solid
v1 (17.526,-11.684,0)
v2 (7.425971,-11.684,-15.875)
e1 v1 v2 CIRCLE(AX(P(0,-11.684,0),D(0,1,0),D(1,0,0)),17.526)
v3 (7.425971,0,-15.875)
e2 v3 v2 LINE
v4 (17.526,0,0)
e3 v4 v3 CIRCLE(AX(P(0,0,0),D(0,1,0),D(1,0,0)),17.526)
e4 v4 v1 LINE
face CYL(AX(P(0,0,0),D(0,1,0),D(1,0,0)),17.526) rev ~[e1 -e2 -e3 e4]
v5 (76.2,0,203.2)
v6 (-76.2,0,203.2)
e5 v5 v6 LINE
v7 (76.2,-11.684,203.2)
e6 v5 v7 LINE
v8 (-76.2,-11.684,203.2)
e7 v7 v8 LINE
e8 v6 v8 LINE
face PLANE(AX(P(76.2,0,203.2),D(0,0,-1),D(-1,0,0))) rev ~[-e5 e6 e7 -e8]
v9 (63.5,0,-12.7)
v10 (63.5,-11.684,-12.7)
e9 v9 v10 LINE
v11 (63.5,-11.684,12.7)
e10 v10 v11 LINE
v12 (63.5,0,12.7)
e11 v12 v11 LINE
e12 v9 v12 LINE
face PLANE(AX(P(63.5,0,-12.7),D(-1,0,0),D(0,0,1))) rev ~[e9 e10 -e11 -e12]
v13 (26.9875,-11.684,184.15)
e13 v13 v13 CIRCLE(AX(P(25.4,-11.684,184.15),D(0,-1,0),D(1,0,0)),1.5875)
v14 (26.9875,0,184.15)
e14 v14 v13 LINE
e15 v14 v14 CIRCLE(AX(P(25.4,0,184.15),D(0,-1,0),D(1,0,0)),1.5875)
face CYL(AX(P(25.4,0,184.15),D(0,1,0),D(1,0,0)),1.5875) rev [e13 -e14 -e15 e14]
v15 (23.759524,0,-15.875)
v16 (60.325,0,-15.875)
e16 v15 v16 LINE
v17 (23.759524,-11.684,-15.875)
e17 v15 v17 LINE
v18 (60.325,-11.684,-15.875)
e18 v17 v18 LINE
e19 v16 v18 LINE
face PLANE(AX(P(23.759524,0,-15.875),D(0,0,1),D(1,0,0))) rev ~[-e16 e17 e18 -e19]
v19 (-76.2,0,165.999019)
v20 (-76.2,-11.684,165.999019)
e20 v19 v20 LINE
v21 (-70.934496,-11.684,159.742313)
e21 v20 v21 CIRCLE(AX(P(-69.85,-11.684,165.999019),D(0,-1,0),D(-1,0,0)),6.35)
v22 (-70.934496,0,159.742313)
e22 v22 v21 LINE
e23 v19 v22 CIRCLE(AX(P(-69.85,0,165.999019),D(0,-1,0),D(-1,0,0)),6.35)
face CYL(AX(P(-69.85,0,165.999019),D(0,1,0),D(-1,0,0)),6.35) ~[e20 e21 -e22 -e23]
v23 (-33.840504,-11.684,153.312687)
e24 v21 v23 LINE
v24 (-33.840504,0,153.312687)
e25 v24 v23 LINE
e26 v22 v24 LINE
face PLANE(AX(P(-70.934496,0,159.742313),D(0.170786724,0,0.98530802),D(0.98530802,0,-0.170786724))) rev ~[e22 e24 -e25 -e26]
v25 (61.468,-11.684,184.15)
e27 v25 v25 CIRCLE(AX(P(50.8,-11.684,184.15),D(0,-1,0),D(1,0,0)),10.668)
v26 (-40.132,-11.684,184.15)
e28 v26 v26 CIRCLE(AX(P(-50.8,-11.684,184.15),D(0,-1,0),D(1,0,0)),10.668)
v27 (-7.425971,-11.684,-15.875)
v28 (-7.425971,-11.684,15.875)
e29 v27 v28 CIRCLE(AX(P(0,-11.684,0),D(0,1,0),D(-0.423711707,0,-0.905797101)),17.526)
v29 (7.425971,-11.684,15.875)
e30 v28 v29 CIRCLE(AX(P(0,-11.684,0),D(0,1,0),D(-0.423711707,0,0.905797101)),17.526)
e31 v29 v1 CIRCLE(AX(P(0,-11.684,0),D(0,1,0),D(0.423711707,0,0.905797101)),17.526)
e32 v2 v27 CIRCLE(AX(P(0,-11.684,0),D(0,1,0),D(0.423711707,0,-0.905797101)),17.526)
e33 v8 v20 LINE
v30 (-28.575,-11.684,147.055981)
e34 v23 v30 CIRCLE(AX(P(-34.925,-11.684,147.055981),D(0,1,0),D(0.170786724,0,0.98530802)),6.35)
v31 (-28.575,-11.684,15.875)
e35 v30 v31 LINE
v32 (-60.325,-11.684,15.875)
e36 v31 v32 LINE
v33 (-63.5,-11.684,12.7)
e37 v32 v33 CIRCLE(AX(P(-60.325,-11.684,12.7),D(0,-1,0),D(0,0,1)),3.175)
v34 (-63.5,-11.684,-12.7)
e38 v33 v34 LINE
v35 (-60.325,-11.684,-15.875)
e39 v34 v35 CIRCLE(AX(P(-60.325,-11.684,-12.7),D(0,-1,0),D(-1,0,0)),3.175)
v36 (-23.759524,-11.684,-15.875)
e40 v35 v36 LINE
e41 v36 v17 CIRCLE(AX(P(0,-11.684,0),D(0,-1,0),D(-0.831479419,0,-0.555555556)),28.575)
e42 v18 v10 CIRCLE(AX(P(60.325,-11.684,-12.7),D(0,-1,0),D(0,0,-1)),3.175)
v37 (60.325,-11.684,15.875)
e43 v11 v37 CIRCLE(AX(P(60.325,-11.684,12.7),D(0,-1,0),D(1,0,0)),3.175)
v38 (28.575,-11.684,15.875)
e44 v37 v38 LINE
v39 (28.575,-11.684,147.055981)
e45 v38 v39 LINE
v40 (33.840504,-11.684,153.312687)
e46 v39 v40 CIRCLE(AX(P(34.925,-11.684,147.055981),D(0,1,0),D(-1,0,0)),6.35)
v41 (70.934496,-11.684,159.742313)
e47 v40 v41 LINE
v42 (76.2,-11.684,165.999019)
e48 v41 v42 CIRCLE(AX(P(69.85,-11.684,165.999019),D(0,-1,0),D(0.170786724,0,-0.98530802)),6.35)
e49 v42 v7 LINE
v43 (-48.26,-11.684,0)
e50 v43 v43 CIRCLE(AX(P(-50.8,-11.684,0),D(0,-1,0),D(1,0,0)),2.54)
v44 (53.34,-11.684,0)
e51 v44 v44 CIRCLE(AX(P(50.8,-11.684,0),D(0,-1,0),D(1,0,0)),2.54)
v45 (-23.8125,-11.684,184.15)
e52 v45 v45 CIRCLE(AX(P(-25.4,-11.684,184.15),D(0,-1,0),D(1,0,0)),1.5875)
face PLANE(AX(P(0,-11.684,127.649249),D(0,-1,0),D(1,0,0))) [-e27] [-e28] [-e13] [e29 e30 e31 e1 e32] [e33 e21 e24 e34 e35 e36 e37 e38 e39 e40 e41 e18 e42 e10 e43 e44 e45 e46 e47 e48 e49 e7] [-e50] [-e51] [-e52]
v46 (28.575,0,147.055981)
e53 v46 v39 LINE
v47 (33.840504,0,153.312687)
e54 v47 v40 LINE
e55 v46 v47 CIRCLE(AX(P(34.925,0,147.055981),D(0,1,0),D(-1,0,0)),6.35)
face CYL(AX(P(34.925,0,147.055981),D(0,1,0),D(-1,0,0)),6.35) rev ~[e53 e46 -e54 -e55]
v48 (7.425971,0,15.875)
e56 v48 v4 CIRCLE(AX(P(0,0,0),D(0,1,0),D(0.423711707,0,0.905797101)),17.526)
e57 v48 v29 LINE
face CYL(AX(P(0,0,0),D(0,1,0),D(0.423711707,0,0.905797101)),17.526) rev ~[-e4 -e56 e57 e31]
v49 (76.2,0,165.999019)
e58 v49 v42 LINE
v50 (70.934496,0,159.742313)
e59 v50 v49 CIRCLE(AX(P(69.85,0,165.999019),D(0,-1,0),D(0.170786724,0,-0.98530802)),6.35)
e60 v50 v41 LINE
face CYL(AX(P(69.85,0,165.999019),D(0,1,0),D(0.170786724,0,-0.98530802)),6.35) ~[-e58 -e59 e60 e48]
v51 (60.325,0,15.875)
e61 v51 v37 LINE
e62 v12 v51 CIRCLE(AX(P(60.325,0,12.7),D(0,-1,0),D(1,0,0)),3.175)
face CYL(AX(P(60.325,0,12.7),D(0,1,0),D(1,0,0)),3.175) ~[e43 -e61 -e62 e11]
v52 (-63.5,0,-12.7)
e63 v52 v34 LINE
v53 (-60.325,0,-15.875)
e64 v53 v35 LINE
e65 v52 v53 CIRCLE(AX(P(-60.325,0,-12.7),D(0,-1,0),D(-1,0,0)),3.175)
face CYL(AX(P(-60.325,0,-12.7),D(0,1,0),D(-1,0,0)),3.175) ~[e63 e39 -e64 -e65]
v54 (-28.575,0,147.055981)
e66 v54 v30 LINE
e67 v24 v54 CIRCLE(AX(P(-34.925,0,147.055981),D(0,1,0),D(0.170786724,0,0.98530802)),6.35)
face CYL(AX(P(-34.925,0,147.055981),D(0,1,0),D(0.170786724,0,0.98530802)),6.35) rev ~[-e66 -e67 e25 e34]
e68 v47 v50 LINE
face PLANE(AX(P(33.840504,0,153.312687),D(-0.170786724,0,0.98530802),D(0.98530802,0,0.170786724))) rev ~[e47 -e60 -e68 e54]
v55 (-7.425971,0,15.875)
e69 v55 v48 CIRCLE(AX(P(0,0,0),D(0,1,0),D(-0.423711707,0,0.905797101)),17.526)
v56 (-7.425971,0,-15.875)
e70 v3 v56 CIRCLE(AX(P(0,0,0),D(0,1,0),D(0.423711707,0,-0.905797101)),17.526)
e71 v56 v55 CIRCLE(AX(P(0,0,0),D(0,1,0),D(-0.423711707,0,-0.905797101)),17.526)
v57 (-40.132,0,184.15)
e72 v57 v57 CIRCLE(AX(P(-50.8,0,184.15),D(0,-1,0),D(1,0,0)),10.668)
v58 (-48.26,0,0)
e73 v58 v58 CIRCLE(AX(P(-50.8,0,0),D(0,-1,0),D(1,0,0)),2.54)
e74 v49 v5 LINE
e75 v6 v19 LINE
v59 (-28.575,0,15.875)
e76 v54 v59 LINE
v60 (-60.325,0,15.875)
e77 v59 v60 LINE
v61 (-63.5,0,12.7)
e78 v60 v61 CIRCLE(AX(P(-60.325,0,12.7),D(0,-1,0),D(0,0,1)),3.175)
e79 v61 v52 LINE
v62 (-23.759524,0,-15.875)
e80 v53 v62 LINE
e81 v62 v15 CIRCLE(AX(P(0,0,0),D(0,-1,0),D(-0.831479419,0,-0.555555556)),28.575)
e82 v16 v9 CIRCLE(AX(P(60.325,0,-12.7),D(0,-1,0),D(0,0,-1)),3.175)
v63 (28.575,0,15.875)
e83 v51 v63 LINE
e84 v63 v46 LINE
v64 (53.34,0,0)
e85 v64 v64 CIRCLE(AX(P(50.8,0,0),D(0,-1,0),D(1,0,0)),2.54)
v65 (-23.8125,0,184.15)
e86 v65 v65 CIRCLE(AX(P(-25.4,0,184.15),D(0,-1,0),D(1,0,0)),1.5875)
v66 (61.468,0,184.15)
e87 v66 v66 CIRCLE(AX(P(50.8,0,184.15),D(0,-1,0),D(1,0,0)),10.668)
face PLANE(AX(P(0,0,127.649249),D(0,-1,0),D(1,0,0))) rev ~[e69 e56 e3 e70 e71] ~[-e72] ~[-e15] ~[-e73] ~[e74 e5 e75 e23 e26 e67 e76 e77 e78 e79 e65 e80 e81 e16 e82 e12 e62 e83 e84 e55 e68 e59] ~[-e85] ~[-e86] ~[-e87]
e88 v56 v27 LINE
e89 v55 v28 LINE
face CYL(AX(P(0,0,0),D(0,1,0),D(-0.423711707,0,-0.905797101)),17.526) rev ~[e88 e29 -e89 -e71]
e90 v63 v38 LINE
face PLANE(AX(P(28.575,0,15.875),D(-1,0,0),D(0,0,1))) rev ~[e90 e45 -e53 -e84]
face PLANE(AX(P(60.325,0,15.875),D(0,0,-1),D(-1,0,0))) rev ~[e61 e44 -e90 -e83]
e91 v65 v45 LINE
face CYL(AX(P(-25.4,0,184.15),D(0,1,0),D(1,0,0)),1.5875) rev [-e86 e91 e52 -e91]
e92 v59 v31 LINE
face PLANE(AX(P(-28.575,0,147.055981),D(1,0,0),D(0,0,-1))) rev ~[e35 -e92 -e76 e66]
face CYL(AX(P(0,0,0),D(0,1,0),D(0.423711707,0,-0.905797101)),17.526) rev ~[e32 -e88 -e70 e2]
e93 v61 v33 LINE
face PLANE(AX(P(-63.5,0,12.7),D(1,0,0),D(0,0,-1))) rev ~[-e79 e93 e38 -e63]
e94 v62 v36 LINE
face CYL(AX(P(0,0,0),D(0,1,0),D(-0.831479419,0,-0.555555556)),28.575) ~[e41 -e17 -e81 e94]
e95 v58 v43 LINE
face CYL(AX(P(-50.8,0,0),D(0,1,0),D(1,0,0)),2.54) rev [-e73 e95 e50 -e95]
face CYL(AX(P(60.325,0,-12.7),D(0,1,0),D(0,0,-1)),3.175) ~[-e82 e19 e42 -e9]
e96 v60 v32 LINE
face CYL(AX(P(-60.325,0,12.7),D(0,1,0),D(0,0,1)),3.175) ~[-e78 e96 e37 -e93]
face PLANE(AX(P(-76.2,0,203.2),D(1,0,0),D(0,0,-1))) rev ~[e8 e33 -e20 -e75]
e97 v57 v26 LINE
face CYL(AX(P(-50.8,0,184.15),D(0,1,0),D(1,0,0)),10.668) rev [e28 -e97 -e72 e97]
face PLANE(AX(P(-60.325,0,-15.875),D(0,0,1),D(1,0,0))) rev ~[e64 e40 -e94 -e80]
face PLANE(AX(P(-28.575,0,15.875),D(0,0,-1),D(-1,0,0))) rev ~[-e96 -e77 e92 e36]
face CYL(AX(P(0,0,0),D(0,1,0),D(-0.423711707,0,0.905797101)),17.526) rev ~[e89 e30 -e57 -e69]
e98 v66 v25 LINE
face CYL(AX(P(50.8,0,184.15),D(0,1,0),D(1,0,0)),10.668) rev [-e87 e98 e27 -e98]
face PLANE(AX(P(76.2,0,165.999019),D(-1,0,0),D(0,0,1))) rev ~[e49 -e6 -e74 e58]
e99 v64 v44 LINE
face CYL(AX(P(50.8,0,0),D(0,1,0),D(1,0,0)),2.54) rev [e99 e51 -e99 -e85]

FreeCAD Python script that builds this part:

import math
import FreeCAD as App
import Part
import Sketcher

V = App.Vector
Q = App.Units.Quantity

doc = App.newDocument("Part")
body = doc.addObject("PartDesign::Body", "Body")

# Sketch on XZ plane
sketch1 = body.newObject("Sketcher::SketchObject", "Sketch")
sketch1.AttachmentSupport = (doc.getObject("XZ_Plane"), [""])
sketch1.MapMode = "FlatFace"
sketch1.addGeometry([
    Part.LineSegment(V(60.3, 15.9, 0), V(28.6, 15.9, 0)),  # 0
    Part.LineSegment(V(28.6, 15.9, 0), V(28.6, 147.1, 0)),  # 1
    Part.ArcOfCircle(Part.Circle(V(34.9, 147.1, 0), V(0, 0, 1), 6.3), math.radians(100), math.radians(180)),  # 2
    Part.LineSegment(V(33.8, 153.3, 0), V(70.9, 159.7, 0)),  # 3
    Part.ArcOfCircle(Part.Circle(V(69.8, 166, 0), V(0, 0, 1), 6.3), math.radians(-80), math.radians(0)),  # 4
    Part.LineSegment(V(76.2, 166, 0), V(76.2, 203.2, 0)),  # 5
    Part.LineSegment(V(76.2, 203.2, 0), V(-76.2, 203.2, 0)),  # 6
    Part.LineSegment(V(-76.2, 203.2, 0), V(-76.2, 166, 0)),  # 7
    Part.ArcOfCircle(Part.Circle(V(-69.8, 166, 0), V(0, 0, 1), 6.3), math.radians(180), math.radians(260)),  # 8
    Part.LineSegment(V(-70.9, 159.7, 0), V(-33.8, 153.3, 0)),  # 9
    Part.ArcOfCircle(Part.Circle(V(-34.9, 147.1, 0), V(0, 0, 1), 6.3), math.radians(0), math.radians(80)),  # 10
    Part.LineSegment(V(-28.6, 147.1, 0), V(-28.6, 15.9, 0)),  # 11
    Part.LineSegment(V(-28.6, 15.9, 0), V(-60.3, 15.9, 0)),  # 12
    Part.ArcOfCircle(Part.Circle(V(-60.3, 12.7, 0), V(0, 0, 1), 3.2), math.radians(90), math.radians(180)),  # 13
    Part.LineSegment(V(-63.5, 12.7, 0), V(-63.5, -12.7, 0)),  # 14
    Part.ArcOfCircle(Part.Circle(V(-60.3, -12.7, 0), V(0, 0, 1), 3.2), math.radians(180), math.radians(270)),  # 15
    Part.LineSegment(V(-60.3, -15.9, 0), V(-23.8, -15.9, 0)),  # 16
    Part.ArcOfCircle(Part.Circle(V(0, 0, 0), V(0, 0, 1), 28.6), math.radians(-146), math.radians(-34)),  # 17
    Part.LineSegment(V(23.8, -15.9, 0), V(60.3, -15.9, 0)),  # 18
    Part.ArcOfCircle(Part.Circle(V(60.3, -12.7, 0), V(0, 0, 1), 3.2), math.radians(-90), math.radians(0)),  # 19
    Part.LineSegment(V(63.5, -12.7, 0), V(63.5, 12.7, 0)),  # 20
    Part.ArcOfCircle(Part.Circle(V(60.3, 12.7, 0), V(0, 0, 1), 3.2), math.radians(0), math.radians(90)),  # 21
    Part.Circle(V(-50.8, 0, 0), V(0, 0, 1), 2.5),  # 22
    Part.ArcOfCircle(Part.Circle(V(0, 0, 0), V(0, 0, 1), 17.5), math.radians(65), math.radians(115)),  # 23
    Part.ArcOfCircle(Part.Circle(V(0, 0, 0), V(0, 0, 1), 17.5), math.radians(0), math.radians(65)),  # 24
    Part.ArcOfCircle(Part.Circle(V(0, 0, 0), V(0, 0, 1), 17.5), math.radians(-65), math.radians(0)),  # 25
    Part.ArcOfCircle(Part.Circle(V(0, 0, 0), V(0, 0, 1), 17.5), math.radians(-115), math.radians(-65)),  # 26
    Part.ArcOfCircle(Part.Circle(V(0, 0, 0), V(0, 0, 1), 17.5), math.radians(115), math.radians(245)),  # 27
    Part.Circle(V(50.8, 0, 0), V(0, 0, 1), 2.5),  # 28
    Part.Circle(V(-50.8, 184.2, 0), V(0, 0, 1), 10.7),  # 29
    Part.Circle(V(-25.4, 184.2, 0), V(0, 0, 1), 1.6),  # 30
    Part.Circle(V(25.4, 184.2, 0), V(0, 0, 1), 1.6),  # 31
    Part.Circle(V(50.8, 184.2, 0), V(0, 0, 1), 10.7),  # 32
], False)
sketch1.addConstraint([
    Sketcher.Constraint("Coincident", 0, 2, 1, 1),
    Sketcher.Constraint("Tangent", 1, 2, 2, 2),
    Sketcher.Constraint("Tangent", 2, 1, 3, 1),
    Sketcher.Constraint("Tangent", 3, 2, 4, 1),
    Sketcher.Constraint("Tangent", 4, 2, 5, 1),
    Sketcher.Constraint("Coincident", 5, 2, 6, 1),
    Sketcher.Constraint("Coincident", 6, 2, 7, 1),
    Sketcher.Constraint("Tangent", 7, 2, 8, 1),
    Sketcher.Constraint("Tangent", 8, 2, 9, 1),
    Sketcher.Constraint("Tangent", 9, 2, 10, 2),
    Sketcher.Constraint("Tangent", 10, 1, 11, 1),
    Sketcher.Constraint("Coincident", 11, 2, 12, 1),
    Sketcher.Constraint("Tangent", 12, 2, 13, 1),
    Sketcher.Constraint("Tangent", 13, 2, 14, 1),
    Sketcher.Constraint("Tangent", 14, 2, 15, 1),
    Sketcher.Constraint("Tangent", 15, 2, 16, 1),
    Sketcher.Constraint("Coincident", 16, 2, 17, 1),
    Sketcher.Constraint("Coincident", 17, 2, 18, 1),
    Sketcher.Constraint("Tangent", 18, 2, 19, 1),
    Sketcher.Constraint("Tangent", 19, 2, 20, 1),
    Sketcher.Constraint("Tangent", 20, 2, 21, 1),
    Sketcher.Constraint("Tangent", 21, 2, 0, 1),
    Sketcher.Constraint("Tangent", 23, 1, 24, 2),
    Sketcher.Constraint("Tangent", 24, 1, 25, 2),
    Sketcher.Constraint("Tangent", 25, 1, 26, 2),
    Sketcher.Constraint("Tangent", 26, 1, 27, 2),
    Sketcher.Constraint("Tangent", 27, 1, 23, 2),
    Sketcher.Constraint("Horizontal", 0),
    Sketcher.Constraint("Vertical", 1),
    Sketcher.Constraint("Vertical", 5),
    Sketcher.Constraint("Horizontal", 6),
    Sketcher.Constraint("Vertical", 7),
    Sketcher.Constraint("Vertical", 11),
    Sketcher.Constraint("Horizontal", 12),
    Sketcher.Constraint("Vertical", 14),
    Sketcher.Constraint("Horizontal", 16),
    Sketcher.Constraint("Horizontal", 18),
    Sketcher.Constraint("Vertical", 20),
    Sketcher.Constraint("Coincident", 17, 3, -1, 1),
    Sketcher.Constraint("Coincident", 23, 3, -1, 1),
    Sketcher.Constraint("Coincident", 25, 3, -1, 1),
    Sketcher.Constraint("Equal", 2, 4),
    Sketcher.Constraint("Equal", 4, 8),
    Sketcher.Constraint("Equal", 8, 10),
    Sketcher.Constraint("Equal", 13, 15),
    Sketcher.Constraint("Equal", 15, 19),
    Sketcher.Constraint("Equal", 19, 21),
    Sketcher.Constraint("Equal", 22, 28),
    Sketcher.Constraint("Equal", 30, 31),
    Sketcher.Constraint("Equal", 29, 32),
    Sketcher.Constraint("Symmetric", 13, 3, 19, 3, -1, 1),
    Sketcher.Constraint("Symmetric", 22, 3, 28, 3, -1, 1),
    Sketcher.Constraint("Symmetric", 4, 3, 8, 3, -2),
    Sketcher.Constraint("Symmetric", 2, 3, 10, 3, -2),
    Sketcher.Constraint("Symmetric", 30, 3, 31, 3, -2),
    Sketcher.Constraint("Symmetric", 29, 3, 32, 3, -2),
    Sketcher.Constraint("PointOnObject", 22, 3, -1),
    Sketcher.Constraint("PointOnObject", 24, 1, -1),
    Sketcher.Constraint("Horizontal", 15, 3, 19, 3),
    Sketcher.Constraint("Horizontal", 13, 3, 21, 3),
    Sketcher.Constraint("Horizontal", 29, 3, 30, 3),
    Sketcher.Constraint("Horizontal", 21, 2, 23, 1),
    Sketcher.Constraint("Horizontal", 18, 2, 25, 1),
    Sketcher.Constraint("Horizontal", 25, 1, 26, 1),
    Sketcher.Constraint("Horizontal", 23, 1, 27, 1),
    Sketcher.Constraint("Vertical", 22, 3, 29, 3),
    Sketcher.Constraint("Diameter", 22, Q("0.2 in")),
    Sketcher.Constraint("Diameter", 29, Q("0.84 in")),
    Sketcher.Constraint("DistanceX", 6, 2, 6, 1, Q("6 in")),
    Sketcher.Constraint("DistanceY", 14, 2, 14, 1, Q("1 in")),
    Sketcher.Constraint("Radius", 2, Q("0.25 in")),
    Sketcher.Constraint("Radius", 23, Q("0.69 in")),
    Sketcher.Constraint("Diameter", 30, Q("0.125 in")),
    Sketcher.Constraint("DistanceX", 22, 3, -1, 1, Q("2 in")),
    Sketcher.Constraint("DistanceX", 30, 3, -1, 1, Q("1 in")),
    Sketcher.Constraint("DistanceY", -1, 1, 5, 2, Q("8 in")),
    Sketcher.Constraint("Radius", 13, Q("0.125 in")),
    Sketcher.Constraint("Radius", 17, Q("1.125 in")),
    Sketcher.Constraint("DistanceX", 13, 3, 10, 3, Q("1 in")),
    Sketcher.Constraint("DistanceX", 13, 2, -1, 1, Q("2.5 in")),
    Sketcher.Constraint("DistanceY", -1, 1, 29, 3, Q("7.25 in")),
    Sketcher.Constraint("Distance", 3, Q("37.647102 mm")),
    Sketcher.Constraint("DistanceY", 1, 1, 1, 2, Q("131.180981 mm")),
])
pad1 = body.newObject("PartDesign::Pad", "Pad")
pad1.Profile = sketch1
pad1.Length = Q("0.46 in")

doc.recompute()
